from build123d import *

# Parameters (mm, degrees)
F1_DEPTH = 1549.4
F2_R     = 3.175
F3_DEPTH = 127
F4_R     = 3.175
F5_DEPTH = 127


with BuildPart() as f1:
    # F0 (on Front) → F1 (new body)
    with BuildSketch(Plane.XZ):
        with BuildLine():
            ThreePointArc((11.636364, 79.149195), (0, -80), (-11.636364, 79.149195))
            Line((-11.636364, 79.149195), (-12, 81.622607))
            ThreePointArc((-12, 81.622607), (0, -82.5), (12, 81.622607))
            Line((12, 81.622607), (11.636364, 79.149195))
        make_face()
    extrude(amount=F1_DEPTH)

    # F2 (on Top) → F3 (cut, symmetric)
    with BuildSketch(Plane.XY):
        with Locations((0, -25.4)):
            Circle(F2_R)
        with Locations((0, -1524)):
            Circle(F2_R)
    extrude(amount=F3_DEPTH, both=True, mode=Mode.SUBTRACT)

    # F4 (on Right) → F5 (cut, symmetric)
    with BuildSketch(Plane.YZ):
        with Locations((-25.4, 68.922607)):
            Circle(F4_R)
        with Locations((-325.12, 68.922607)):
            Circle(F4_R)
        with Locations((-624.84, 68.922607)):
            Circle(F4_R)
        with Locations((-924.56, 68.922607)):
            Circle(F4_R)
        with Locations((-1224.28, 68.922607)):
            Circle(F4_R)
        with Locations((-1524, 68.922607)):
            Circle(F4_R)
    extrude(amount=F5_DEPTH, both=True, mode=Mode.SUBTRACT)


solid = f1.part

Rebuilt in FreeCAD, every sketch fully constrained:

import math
import FreeCAD as App
import Part
import Sketcher

V = App.Vector

doc = App.newDocument("Part")
body = doc.addObject("PartDesign::Body", "Body")

sketch1 = doc.addObject("Sketcher::SketchObject", "Sketch")
body.addObject(sketch1)
sketch1.AttachmentSupport = (doc.XZ_Plane, [""])
sketch1.MapMode = "FlatFace"
sketch1.addGeometry([
    Part.ArcOfCircle(Part.Circle(V(0, 0, 0), V(0, 0, 1), 80), math.radians(98), math.radians(442)),
    Part.LineSegment(V(-11.6, 79.1, 0), V(-12, 81.6, 0)),
    Part.ArcOfCircle(Part.Circle(V(0, 0, 0), V(0, 0, 1), 82.5), math.radians(98), math.radians(442)),
    Part.LineSegment(V(12, 81.6, 0), V(11.6, 79.1, 0)),
], False)
sketch1.addConstraint([
    Sketcher.Constraint("Coincident", 0, 1, 1, 1),
    Sketcher.Constraint("Coincident", 1, 2, 2, 1),
    Sketcher.Constraint("Coincident", 2, 2, 3, 1),
    Sketcher.Constraint("Coincident", 3, 2, 0, 2),
    Sketcher.Constraint("Coincident", 0, 3, -1, 1),
    Sketcher.Constraint("Coincident", 2, 3, -1, 1),
    Sketcher.Constraint("Horizontal", 1, 2, 2, 2),
    Sketcher.Constraint("Horizontal", 0, 1, 3, 2),
    Sketcher.Constraint("Radius", 0, 80.0),
    Sketcher.Constraint("Radius", 2, 82.5),
    Sketcher.Constraint("DistanceX", 1, 2, -1, 1, 12.0),
    Sketcher.Constraint("DistanceY", 0, 1, 2, 2, 2.473412),
])
pad1 = doc.addObject("PartDesign::Pad", "Pad")
body.addObject(pad1)
pad1.Profile = sketch1
pad1.Length = 1549.4

sketch2 = doc.addObject("Sketcher::SketchObject", "Sketch001")
body.addObject(sketch2)
sketch2.AttachmentSupport = (doc.XY_Plane, [""])
sketch2.MapMode = "FlatFace"
sketch2.addGeometry([
    Part.Circle(V(0, -25.4, 0), V(0, 0, 1), 3.2),
    Part.Circle(V(0, -1524, 0), V(0, 0, 1), 3.2),
], False)
sketch2.addConstraint([
    Sketcher.Constraint("Equal", 0, 1),
    Sketcher.Constraint("PointOnObject", 0, 3, -2),
    Sketcher.Constraint("PointOnObject", 1, 3, -2),
    Sketcher.Constraint("Diameter", 0, 6.35),
    Sketcher.Constraint("DistanceY", 1, 3, -1, 1, 1524.0),
    Sketcher.Constraint("DistanceY", 0, 3, -1, 1, 25.4),
])
pocket1 = doc.addObject("PartDesign::Pocket", "Pocket")
body.addObject(pocket1)
pocket1.Profile = sketch2
pocket1.Length = 254
pocket1.Midplane = True

sketch3 = doc.addObject("Sketcher::SketchObject", "Sketch002")
body.addObject(sketch3)
sketch3.AttachmentSupport = (doc.YZ_Plane, [""])
sketch3.MapMode = "FlatFace"
sketch3.addGeometry([
    Part.Circle(V(-25.4, 68.9, 0), V(0, 0, 1), 3.2),
    Part.Circle(V(-325.1, 68.9, 0), V(0, 0, 1), 3.2),
    Part.Circle(V(-624.8, 68.9, 0), V(0, 0, 1), 3.2),
    Part.Circle(V(-924.6, 68.9, 0), V(0, 0, 1), 3.2),
    Part.Circle(V(-1224.3, 68.9, 0), V(0, 0, 1), 3.2),
    Part.Circle(V(-1524, 68.9, 0), V(0, 0, 1), 3.2),
], False)
sketch3.addConstraint([
    Sketcher.Constraint("Equal", 0, 1),
    Sketcher.Constraint("Equal", 1, 2),
    Sketcher.Constraint("Equal", 2, 3),
    Sketcher.Constraint("Equal", 3, 4),
    Sketcher.Constraint("Equal", 4, 5),
    Sketcher.Constraint("Horizontal", 0, 3, 1, 3),
    Sketcher.Constraint("Horizontal", 1, 3, 2, 3),
    Sketcher.Constraint("Horizontal", 2, 3, 3, 3),
    Sketcher.Constraint("Horizontal", 3, 3, 4, 3),
    Sketcher.Constraint("Horizontal", 4, 3, 5, 3),
    Sketcher.Constraint("Diameter", 0, 6.35),
    Sketcher.Constraint("DistanceX", 5, 3, -1, 1, 1524.0),
    Sketcher.Constraint("DistanceX", 0, 3, -1, 1, 25.4),
    Sketcher.Constraint("DistanceX", 1, 3, -1, 1, 325.12),
    Sketcher.Constraint("DistanceX", 2, 3, -1, 1, 624.84),
    Sketcher.Constraint("DistanceX", 3, 3, -1, 1, 924.56),
    Sketcher.Constraint("DistanceX", 4, 3, -1, 1, 1224.28),
    Sketcher.Constraint("DistanceY", -1, 1, 0, 3, 68.922607),
])
pocket2 = doc.addObject("PartDesign::Pocket", "Pocket001")
body.addObject(pocket2)
pocket2.Profile = sketch3
pocket2.Length = 254
pocket2.Midplane = True

doc.recompute()
